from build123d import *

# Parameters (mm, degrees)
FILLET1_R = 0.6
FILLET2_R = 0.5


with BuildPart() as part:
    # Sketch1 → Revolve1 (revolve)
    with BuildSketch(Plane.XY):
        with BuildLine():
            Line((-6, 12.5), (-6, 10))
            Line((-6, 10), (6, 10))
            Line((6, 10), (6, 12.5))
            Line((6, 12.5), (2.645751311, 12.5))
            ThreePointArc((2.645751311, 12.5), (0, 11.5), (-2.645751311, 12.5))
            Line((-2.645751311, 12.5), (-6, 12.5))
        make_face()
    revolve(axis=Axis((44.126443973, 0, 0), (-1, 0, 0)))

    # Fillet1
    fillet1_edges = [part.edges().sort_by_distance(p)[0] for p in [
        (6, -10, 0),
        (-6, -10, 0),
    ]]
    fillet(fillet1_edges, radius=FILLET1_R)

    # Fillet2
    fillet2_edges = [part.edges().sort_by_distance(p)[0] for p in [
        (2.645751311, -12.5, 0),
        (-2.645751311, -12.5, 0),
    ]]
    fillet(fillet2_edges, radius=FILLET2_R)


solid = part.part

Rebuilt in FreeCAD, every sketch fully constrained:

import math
import FreeCAD as App
import Part
import Sketcher

V = App.Vector


def edges_at(feature, points):
    """Names of the edges that pass closest to the given points."""
    edges = feature.Shape.Edges
    near = lambda p: min(range(len(edges)), key=lambda i: edges[i].distToShape(Part.Vertex(*p))[0])
    return sorted({f"Edge{near(p) + 1}" for p in points})

doc = App.newDocument("Part")
params = doc.addObject("Spreadsheet::Sheet", "Params")
for row, (alias, value) in enumerate([
    ("sketch1_radius", "4 mm"),
    ("sketch1_width", "12 mm"),
    ("sketch1_height", "2.5 mm"),
    ("revolution_angle", "360 deg"),
    ("fillet_radius", "0.6 mm"),
    ("fillet2_radius", "0.5 mm"),
], start=1):
    params.set(f"A{row}", alias)
    params.set(f"B{row}", "=" + value)
    params.setAlias(f"B{row}", alias)

body = doc.addObject("PartDesign::Body", "Body")

# Sketch on XY plane
sketch1 = body.newObject("Sketcher::SketchObject", "Sketch")
sketch1.AttachmentSupport = (doc.getObject("XY_Plane"), [""])
sketch1.MapMode = "FlatFace"
sketch1.addGeometry([
    Part.LineSegment(V(-6, 12.5, 0), V(-6, 10, 0)),  # 0
    Part.LineSegment(V(-6, 10, 0), V(6, 10, 0)),  # 1
    Part.LineSegment(V(6, 10, 0), V(6, 12.5, 0)),  # 2
    Part.LineSegment(V(6, 12.5, 0), V(2.6, 12.5, 0)),  # 3
    Part.ArcOfCircle(Part.Circle(V(0, 15.5, 0), V(0, 0, 1), 4), math.radians(-131), math.radians(-49)),  # 4
    Part.LineSegment(V(-2.6, 12.5, 0), V(-6, 12.5, 0)),  # 5
], False)
sketch1.addConstraint([
    Sketcher.Constraint("Coincident", 0, 2, 1, 1),
    Sketcher.Constraint("Coincident", 1, 2, 2, 1),
    Sketcher.Constraint("Coincident", 2, 2, 3, 1),
    Sketcher.Constraint("Coincident", 3, 2, 4, 2),
    Sketcher.Constraint("Coincident", 4, 1, 5, 1),
    Sketcher.Constraint("Coincident", 5, 2, 0, 1),
    Sketcher.Constraint("Vertical", 0),
    Sketcher.Constraint("Horizontal", 1),
    Sketcher.Constraint("Vertical", 2),
    Sketcher.Constraint("Horizontal", 3),
    Sketcher.Constraint("Horizontal", 5),
    Sketcher.Constraint("Symmetric", 3, 2, 4, 1, -2),
    Sketcher.Constraint("Equal", 3, 5),
    Sketcher.Constraint("Radius", 4, 4.0),
    Sketcher.Constraint("DistanceX", 1, 1, 1, 2, 12.0),
    Sketcher.Constraint("DistanceY", 0, 2, 0, 1, 2.5),
    Sketcher.Constraint("DistanceY", -1, 1, 0, 2, 10.0),
    Sketcher.Constraint("DistanceY", 2, 2, 4, 3, 3.0),
])
sketch1.setExpression("Constraints[13]", "Params.sketch1_radius")
sketch1.setExpression("Constraints[14]", "Params.sketch1_width")
sketch1.setExpression("Constraints[15]", "Params.sketch1_height")
revolution = body.newObject("PartDesign::Revolution", "Revolution")
revolution.Profile = sketch1
revolution.ReferenceAxis = (sketch1, ["H_Axis"])
revolution.setExpression("Angle", "Params.revolution_angle")
doc.recompute()

fillet = body.newObject("PartDesign::Fillet", "Fillet")
fillet.Base = (revolution, edges_at(revolution, [(6, -10, 0), (-6, -10, 0)]))
fillet.setExpression("Radius", "Params.fillet_radius")
doc.recompute()

fillet2 = body.newObject("PartDesign::Fillet", "Fillet001")
fillet2.Base = (fillet, edges_at(fillet, [(2.646, -12.5, 0), (-2.646, -12.5, 0)]))
fillet2.setExpression("Radius", "Params.fillet2_radius")

doc.recompute()
